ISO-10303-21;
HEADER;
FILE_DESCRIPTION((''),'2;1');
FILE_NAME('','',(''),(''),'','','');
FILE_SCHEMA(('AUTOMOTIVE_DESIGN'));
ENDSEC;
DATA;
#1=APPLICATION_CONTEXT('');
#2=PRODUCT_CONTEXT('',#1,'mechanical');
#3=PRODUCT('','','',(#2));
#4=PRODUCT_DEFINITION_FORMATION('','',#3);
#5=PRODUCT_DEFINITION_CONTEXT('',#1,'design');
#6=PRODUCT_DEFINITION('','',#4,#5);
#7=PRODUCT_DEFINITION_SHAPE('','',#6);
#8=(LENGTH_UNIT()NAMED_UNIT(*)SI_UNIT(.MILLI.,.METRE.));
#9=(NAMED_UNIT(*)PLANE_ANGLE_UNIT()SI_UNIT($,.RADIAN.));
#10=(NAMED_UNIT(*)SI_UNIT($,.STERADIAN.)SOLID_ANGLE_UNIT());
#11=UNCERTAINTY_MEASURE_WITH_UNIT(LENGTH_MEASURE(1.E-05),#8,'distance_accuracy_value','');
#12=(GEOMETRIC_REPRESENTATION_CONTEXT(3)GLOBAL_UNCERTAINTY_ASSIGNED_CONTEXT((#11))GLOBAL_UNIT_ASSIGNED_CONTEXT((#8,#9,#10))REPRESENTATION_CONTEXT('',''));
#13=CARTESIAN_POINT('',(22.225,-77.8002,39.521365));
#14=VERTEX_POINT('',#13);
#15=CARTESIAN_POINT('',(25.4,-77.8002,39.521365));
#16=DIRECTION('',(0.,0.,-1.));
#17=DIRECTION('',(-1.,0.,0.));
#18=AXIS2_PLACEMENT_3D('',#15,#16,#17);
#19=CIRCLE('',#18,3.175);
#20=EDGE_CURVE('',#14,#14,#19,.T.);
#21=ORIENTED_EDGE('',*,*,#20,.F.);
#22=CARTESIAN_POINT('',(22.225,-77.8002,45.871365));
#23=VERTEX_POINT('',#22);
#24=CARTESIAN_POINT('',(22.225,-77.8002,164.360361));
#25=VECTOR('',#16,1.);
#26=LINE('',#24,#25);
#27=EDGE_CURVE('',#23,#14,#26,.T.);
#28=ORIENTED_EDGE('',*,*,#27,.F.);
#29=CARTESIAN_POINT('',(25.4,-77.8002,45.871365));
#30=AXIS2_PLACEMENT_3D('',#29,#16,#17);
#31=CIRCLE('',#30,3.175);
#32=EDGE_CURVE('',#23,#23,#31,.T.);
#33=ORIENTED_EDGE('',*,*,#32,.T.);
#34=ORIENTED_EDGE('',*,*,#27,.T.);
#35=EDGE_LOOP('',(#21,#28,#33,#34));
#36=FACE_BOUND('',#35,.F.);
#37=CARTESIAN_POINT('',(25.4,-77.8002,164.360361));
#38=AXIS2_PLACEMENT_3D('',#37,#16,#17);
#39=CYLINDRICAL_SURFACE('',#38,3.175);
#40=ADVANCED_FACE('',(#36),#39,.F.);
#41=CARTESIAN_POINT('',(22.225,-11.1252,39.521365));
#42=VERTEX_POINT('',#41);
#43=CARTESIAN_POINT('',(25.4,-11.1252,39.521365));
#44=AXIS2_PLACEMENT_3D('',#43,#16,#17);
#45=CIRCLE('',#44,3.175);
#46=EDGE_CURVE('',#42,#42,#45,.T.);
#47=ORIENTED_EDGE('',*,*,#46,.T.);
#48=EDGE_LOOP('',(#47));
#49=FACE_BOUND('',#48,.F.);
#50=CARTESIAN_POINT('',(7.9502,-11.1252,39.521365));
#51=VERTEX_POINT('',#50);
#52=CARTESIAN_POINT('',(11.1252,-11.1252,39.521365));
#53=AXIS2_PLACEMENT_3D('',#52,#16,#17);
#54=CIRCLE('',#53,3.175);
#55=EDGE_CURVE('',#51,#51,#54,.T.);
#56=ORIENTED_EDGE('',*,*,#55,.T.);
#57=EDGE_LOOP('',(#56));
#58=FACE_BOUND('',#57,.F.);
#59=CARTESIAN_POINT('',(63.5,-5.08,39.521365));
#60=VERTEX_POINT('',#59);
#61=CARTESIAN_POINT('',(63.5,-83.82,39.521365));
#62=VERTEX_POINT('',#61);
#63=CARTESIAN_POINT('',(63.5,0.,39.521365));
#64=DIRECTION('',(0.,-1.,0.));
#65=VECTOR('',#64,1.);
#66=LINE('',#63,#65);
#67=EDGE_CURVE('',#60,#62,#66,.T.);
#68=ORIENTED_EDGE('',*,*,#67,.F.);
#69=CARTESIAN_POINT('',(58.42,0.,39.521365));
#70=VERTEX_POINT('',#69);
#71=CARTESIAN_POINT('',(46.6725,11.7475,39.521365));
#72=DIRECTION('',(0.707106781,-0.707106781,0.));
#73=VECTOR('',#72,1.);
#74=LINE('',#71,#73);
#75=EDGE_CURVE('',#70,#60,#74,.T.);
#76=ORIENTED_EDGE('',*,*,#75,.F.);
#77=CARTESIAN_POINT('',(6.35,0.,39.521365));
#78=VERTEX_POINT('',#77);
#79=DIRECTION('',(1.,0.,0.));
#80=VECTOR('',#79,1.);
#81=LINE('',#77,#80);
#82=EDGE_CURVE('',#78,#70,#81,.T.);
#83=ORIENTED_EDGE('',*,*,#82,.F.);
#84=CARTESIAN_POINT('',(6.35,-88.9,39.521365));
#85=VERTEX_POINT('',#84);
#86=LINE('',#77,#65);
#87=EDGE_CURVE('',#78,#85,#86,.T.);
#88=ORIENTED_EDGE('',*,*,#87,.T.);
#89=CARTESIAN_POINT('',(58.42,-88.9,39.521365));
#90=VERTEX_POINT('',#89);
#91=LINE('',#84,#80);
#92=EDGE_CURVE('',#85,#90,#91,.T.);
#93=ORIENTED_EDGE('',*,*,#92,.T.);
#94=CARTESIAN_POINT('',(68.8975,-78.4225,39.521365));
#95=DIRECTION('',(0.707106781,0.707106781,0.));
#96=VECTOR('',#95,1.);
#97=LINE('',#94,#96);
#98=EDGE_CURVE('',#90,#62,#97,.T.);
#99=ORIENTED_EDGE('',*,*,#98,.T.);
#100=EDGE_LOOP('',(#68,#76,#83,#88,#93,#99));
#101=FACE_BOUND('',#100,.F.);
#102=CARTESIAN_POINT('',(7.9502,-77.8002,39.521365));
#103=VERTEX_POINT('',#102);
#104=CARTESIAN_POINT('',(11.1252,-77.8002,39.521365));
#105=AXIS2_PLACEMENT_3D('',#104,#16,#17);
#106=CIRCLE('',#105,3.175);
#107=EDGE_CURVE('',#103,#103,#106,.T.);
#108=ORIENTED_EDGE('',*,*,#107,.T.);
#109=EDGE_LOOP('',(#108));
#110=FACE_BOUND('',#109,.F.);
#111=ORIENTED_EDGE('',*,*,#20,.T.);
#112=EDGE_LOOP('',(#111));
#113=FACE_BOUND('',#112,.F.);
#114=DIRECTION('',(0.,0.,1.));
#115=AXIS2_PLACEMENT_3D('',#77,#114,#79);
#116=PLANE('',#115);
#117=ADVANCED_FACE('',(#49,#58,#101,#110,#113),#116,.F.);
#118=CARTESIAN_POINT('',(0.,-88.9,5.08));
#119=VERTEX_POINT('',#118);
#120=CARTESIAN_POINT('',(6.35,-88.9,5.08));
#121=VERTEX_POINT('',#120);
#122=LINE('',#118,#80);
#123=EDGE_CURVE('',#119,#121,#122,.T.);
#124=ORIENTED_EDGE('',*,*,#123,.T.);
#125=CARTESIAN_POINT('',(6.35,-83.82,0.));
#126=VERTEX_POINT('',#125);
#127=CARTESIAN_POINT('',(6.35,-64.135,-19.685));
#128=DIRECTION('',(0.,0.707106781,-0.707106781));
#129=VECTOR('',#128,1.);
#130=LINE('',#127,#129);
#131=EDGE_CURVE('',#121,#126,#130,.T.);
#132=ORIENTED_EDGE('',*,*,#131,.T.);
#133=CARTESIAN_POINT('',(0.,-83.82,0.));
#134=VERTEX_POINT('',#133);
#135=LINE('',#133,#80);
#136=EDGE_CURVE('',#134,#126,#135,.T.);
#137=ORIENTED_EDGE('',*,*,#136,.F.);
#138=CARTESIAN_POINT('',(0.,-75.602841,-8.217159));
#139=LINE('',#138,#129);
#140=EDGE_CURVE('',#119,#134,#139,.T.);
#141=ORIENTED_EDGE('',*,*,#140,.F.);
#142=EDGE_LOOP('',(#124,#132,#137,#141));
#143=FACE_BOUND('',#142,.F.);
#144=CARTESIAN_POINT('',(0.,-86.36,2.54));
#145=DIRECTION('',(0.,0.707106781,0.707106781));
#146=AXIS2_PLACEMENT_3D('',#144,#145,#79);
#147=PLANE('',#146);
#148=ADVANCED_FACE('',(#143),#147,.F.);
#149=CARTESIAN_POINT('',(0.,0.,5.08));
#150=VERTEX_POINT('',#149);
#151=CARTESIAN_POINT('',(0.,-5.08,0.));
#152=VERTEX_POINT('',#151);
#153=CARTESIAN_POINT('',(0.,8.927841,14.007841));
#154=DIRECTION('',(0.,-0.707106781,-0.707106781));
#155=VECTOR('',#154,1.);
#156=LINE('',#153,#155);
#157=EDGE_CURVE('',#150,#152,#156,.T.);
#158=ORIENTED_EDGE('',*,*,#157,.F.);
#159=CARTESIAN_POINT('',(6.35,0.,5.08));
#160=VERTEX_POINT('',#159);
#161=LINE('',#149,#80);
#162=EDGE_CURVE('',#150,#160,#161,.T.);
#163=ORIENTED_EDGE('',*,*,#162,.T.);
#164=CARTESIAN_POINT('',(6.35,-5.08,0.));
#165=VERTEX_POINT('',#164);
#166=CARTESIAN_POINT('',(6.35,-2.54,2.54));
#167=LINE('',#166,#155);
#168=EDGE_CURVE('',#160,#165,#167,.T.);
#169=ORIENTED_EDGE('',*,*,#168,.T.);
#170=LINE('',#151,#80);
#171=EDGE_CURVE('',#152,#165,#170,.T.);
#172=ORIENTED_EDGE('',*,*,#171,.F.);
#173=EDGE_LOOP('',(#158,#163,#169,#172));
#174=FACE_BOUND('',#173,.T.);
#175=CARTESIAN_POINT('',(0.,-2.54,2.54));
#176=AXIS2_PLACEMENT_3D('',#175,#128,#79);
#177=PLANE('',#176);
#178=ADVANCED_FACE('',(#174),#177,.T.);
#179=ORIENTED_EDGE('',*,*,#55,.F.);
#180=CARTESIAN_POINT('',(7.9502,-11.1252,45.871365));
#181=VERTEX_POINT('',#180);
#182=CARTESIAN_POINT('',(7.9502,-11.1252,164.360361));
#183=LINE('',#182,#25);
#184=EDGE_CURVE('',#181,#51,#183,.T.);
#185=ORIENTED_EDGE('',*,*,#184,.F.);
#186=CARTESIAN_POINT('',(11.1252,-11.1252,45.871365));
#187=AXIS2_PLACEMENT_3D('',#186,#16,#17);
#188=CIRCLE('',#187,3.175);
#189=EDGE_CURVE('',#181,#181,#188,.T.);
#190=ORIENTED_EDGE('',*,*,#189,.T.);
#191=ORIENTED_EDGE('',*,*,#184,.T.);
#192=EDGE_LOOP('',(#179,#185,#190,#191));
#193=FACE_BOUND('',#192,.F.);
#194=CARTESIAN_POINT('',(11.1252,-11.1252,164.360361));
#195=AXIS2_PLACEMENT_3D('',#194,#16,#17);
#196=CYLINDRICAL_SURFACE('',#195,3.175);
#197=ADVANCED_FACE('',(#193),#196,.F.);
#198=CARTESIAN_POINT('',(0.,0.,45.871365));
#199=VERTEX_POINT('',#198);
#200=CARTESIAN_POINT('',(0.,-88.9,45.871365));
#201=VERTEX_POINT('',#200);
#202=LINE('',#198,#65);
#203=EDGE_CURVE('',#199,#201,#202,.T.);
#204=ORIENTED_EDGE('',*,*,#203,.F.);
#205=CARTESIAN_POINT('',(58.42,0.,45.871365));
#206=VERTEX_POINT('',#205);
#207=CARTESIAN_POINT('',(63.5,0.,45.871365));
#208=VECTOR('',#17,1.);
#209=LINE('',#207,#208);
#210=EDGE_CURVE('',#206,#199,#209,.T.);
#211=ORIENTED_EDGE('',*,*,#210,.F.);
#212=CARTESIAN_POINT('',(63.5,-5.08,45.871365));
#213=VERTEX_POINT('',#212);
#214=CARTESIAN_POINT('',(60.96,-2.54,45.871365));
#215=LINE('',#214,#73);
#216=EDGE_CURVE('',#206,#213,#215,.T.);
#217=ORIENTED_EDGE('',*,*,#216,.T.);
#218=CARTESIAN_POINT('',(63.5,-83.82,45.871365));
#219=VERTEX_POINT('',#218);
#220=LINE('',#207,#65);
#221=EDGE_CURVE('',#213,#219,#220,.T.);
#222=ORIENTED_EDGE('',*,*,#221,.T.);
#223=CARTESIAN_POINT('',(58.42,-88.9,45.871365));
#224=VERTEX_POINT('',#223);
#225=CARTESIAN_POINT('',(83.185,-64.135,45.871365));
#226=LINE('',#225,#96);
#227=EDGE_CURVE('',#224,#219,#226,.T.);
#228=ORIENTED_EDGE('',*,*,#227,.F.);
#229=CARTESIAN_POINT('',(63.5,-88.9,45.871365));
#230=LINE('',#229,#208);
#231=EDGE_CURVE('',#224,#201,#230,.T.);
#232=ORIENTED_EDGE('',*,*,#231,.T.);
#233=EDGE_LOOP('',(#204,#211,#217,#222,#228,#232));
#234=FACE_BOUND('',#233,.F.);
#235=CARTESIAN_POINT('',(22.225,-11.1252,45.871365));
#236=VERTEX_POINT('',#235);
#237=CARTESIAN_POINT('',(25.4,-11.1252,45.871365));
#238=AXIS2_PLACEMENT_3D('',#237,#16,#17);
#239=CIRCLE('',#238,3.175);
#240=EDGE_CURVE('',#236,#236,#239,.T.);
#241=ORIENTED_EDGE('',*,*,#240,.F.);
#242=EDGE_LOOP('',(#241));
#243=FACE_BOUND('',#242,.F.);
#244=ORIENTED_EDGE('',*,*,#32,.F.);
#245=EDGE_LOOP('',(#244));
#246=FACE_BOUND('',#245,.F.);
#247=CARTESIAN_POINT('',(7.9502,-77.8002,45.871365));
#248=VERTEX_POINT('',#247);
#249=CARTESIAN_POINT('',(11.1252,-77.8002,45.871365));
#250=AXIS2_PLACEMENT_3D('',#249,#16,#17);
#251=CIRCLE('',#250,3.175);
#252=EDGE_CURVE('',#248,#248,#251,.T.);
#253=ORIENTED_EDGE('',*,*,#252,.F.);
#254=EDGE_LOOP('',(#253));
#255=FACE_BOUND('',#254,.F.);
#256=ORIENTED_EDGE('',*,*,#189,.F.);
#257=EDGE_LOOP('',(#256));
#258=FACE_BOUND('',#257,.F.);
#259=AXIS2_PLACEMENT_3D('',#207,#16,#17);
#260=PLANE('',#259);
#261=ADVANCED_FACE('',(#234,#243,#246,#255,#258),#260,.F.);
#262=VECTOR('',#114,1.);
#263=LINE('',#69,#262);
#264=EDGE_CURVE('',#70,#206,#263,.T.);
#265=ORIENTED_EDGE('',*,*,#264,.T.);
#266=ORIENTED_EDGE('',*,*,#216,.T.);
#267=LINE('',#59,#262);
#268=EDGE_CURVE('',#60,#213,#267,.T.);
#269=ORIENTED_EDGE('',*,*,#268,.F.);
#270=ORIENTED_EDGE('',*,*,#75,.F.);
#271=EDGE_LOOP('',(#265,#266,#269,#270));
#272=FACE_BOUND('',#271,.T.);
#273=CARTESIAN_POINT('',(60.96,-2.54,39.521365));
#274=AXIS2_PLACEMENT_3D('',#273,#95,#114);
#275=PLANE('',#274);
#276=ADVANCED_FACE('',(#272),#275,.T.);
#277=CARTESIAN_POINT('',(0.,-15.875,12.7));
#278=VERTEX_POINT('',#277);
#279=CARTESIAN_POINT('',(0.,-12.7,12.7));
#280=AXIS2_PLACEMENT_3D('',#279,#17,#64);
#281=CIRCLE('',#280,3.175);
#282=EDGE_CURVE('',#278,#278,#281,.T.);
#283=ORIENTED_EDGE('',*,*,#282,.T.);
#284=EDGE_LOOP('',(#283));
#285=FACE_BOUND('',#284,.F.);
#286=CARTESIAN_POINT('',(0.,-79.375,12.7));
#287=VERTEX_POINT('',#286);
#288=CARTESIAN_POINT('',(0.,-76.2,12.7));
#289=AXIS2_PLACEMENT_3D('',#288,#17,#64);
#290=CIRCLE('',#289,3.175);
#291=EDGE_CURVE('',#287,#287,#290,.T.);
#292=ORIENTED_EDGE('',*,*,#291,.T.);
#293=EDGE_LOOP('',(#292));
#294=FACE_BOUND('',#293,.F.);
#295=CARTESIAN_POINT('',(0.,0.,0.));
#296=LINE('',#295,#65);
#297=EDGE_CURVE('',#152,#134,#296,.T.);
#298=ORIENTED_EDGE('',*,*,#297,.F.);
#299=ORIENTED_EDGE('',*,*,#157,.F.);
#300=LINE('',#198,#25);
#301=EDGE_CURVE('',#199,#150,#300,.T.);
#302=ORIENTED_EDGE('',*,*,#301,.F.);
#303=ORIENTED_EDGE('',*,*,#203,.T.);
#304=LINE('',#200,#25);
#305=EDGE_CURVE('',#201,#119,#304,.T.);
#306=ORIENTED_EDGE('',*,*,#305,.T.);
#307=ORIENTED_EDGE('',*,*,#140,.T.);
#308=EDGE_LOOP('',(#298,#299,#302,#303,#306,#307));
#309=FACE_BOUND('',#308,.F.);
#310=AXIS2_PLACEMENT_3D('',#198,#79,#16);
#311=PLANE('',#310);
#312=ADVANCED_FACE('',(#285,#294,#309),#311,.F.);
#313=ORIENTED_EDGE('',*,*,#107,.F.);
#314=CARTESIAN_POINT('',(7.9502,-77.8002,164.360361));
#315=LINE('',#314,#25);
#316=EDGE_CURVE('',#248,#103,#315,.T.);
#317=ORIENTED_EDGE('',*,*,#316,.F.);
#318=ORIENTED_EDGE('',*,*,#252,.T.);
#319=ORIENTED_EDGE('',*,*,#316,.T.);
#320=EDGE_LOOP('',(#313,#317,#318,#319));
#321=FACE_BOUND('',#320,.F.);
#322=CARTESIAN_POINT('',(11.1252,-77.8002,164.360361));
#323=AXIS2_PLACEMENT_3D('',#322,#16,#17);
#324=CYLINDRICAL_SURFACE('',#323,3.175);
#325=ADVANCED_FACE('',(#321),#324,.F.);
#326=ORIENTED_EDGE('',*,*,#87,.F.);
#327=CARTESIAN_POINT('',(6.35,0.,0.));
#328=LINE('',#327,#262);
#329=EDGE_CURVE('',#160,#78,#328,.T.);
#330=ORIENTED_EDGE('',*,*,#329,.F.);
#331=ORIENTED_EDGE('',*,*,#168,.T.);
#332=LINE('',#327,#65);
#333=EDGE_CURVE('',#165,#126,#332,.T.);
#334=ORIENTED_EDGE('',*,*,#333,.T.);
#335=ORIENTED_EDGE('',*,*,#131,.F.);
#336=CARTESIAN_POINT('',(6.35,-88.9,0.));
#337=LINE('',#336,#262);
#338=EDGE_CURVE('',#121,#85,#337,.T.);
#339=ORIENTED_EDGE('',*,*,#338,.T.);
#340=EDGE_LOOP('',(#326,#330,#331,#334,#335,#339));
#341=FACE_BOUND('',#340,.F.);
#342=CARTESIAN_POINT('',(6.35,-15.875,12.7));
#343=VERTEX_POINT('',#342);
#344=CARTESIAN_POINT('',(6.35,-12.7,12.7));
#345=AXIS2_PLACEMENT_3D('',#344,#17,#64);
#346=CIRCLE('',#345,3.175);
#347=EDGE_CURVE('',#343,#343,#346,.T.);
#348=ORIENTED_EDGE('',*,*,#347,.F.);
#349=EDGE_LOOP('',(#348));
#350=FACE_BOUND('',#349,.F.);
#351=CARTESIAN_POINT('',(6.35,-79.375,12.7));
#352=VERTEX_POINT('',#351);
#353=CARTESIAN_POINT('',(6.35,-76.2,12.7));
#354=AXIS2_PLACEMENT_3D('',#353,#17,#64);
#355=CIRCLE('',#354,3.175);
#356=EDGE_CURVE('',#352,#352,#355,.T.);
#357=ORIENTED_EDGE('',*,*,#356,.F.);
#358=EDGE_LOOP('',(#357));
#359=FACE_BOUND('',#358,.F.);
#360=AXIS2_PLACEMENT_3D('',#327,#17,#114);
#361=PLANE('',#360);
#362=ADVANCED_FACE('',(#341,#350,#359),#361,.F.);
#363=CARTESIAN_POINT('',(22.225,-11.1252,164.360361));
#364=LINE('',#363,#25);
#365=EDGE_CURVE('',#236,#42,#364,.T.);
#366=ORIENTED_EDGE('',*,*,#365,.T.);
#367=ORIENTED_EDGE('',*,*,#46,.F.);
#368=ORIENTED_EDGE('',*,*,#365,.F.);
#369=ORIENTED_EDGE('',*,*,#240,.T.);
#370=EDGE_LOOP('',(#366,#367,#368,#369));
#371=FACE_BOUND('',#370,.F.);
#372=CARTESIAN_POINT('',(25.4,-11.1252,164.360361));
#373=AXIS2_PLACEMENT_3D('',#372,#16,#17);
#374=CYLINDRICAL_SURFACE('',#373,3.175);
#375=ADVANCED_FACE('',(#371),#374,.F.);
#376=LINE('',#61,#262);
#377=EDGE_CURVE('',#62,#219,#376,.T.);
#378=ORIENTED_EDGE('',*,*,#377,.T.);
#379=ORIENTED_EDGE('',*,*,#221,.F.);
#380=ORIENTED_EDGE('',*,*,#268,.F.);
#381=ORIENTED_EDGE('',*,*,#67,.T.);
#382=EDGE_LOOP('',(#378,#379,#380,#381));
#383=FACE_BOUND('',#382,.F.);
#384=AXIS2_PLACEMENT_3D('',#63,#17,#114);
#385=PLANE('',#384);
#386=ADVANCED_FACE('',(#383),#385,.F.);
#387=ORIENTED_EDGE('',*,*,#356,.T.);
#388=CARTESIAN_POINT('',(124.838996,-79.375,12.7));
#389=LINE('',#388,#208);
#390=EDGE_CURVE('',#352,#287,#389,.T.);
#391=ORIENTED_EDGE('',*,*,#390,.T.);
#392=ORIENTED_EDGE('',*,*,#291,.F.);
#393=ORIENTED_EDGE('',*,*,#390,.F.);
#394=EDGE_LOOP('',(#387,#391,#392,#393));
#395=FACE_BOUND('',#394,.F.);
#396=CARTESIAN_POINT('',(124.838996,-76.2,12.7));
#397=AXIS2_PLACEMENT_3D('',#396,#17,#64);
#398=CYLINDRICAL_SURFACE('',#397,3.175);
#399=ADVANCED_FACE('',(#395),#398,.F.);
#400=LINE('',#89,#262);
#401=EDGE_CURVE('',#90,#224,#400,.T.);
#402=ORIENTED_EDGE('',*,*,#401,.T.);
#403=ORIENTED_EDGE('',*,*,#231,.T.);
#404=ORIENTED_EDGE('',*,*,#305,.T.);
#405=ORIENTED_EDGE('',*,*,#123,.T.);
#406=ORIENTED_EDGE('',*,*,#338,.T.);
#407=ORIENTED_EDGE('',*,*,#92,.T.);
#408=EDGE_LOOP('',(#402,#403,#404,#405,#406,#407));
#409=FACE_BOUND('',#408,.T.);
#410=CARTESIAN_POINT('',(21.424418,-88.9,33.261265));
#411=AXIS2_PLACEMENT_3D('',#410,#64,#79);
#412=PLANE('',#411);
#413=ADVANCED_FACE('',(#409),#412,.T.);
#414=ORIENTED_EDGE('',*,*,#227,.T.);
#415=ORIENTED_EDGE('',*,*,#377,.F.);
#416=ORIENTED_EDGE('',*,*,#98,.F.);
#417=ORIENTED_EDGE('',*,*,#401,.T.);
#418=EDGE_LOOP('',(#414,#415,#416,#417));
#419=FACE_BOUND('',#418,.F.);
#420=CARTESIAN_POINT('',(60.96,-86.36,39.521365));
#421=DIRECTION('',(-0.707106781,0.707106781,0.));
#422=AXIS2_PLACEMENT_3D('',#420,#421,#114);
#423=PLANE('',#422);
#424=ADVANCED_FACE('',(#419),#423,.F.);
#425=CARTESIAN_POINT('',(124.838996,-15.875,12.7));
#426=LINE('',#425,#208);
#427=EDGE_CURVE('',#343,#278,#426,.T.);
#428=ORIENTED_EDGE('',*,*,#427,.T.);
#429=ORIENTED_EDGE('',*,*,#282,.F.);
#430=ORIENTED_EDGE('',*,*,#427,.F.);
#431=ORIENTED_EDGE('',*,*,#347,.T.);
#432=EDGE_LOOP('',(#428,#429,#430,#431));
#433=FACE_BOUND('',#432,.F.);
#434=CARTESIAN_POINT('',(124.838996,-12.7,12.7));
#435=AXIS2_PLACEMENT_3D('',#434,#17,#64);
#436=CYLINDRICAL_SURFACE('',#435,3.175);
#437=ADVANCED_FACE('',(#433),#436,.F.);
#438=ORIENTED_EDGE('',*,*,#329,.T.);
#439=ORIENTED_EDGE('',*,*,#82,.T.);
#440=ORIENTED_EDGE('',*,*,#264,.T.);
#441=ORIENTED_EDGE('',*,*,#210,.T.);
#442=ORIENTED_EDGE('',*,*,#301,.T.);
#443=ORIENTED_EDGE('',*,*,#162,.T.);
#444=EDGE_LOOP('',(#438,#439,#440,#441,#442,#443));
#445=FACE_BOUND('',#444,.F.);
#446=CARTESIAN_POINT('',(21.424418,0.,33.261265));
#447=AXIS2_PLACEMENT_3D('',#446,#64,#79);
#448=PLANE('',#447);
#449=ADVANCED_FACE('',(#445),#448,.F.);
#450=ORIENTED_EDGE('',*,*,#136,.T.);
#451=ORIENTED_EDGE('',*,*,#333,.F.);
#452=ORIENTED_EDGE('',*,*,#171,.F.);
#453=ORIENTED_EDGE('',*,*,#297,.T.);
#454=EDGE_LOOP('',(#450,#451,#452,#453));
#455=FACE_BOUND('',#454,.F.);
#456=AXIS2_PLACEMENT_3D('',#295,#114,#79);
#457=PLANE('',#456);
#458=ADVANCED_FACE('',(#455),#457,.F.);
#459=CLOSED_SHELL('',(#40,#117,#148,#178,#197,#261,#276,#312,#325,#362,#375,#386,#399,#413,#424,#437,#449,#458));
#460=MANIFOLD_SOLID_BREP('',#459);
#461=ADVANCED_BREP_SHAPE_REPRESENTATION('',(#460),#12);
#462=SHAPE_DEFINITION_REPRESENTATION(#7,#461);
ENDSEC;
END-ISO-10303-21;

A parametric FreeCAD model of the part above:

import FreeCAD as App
import Part
import Sketcher

V = App.Vector
Q = App.Units.Quantity


def edges_at(feature, points):
    """Names of the edges that pass closest to the given points."""
    edges = feature.Shape.Edges
    near = lambda p: min(range(len(edges)), key=lambda i: edges[i].distToShape(Part.Vertex(*p))[0])
    return sorted({f"Edge{near(p) + 1}" for p in points})

doc = App.newDocument("Part")
body = doc.addObject("PartDesign::Body", "Body")

# Sketch on XZ plane
sketch1 = body.newObject("Sketcher::SketchObject", "Sketch")
sketch1.AttachmentSupport = (doc.getObject("XZ_Plane"), [""])
sketch1.MapMode = "FlatFace"
sketch1.addGeometry([
    Part.LineSegment(V(0, 46, 0), V(0, 0, 0)),  # 0
    Part.LineSegment(V(0, 0, 0), V(6, 0, 0)),  # 1
    Part.LineSegment(V(6, 0, 0), V(6, 40, 0)),  # 2
    Part.LineSegment(V(6, 40, 0), V(64, 40, 0)),  # 3
    Part.LineSegment(V(64, 40, 0), V(64, 46, 0)),  # 4
    Part.LineSegment(V(64, 46, 0), V(0, 46, 0)),  # 5
], False)
sketch1.addConstraint([
    Sketcher.Constraint("Coincident", 0, 2, 1, 1),
    Sketcher.Constraint("Coincident", 1, 2, 2, 1),
    Sketcher.Constraint("Coincident", 2, 2, 3, 1),
    Sketcher.Constraint("Coincident", 3, 2, 4, 1),
    Sketcher.Constraint("Coincident", 4, 2, 5, 1),
    Sketcher.Constraint("Coincident", 5, 2, 0, 1),
    Sketcher.Constraint("Vertical", 0),
    Sketcher.Constraint("Horizontal", 1),
    Sketcher.Constraint("Vertical", 2),
    Sketcher.Constraint("Horizontal", 3),
    Sketcher.Constraint("Vertical", 4),
    Sketcher.Constraint("Horizontal", 5),
    Sketcher.Constraint("Coincident", 0, 2, -1, 1),
    Sketcher.Constraint("Equal", 1, 4),
    Sketcher.Constraint("DistanceX", 5, 2, 5, 1, Q("2.5 in")),
    Sketcher.Constraint("DistanceX", 1, 1, 1, 2, Q("0.25 in")),
    Sketcher.Constraint("DistanceY", 0, 2, 0, 1, 45.871365),
])
pad1 = body.newObject("PartDesign::Pad", "Pad")
pad1.Profile = sketch1
pad1.Length = Q("3.5 in")

# Sketch on YZ plane
sketch2 = body.newObject("Sketcher::SketchObject", "Sketch001")
sketch2.AttachmentSupport = (doc.getObject("YZ_Plane"), [""])
sketch2.MapMode = "FlatFace"
sketch2.AttachmentOffset = App.Placement(V(0, 0, 0.25 * 25.4), App.Rotation())
sketch2.addGeometry([
    Part.Circle(V(-76.2, 12.7, 0), V(0, 0, 1), 3.2),
    Part.Circle(V(-12.7, 12.7, 0), V(0, 0, 1), 3.2),
], False)
sketch2.addConstraint([
    Sketcher.Constraint("Equal", 0, 1),
    Sketcher.Constraint("Horizontal", 0, 3, 1, 3),
    Sketcher.Constraint("Diameter", 0, Q("0.25 in")),
    Sketcher.Constraint("DistanceX", 0, 3, -1, 1, Q("3 in")),
    Sketcher.Constraint("DistanceY", -1, 1, 0, 3, Q("0.5 in")),
    Sketcher.Constraint("DistanceX", 1, 3, -1, 1, Q("0.5 in")),
])
doc.recompute()
hole = body.newObject("PartDesign::Hole", "Hole")
hole.Profile = sketch2
hole.ThreadType = "None"
hole.Diameter = Q("0.25 in")
hole.DepthType = "ThroughAll"
doc.recompute()

chamfer = body.newObject("PartDesign::Chamfer", "Chamfer")
chamfer.Base = (hole, edges_at(hole, [
    (3.175, 0, 0),
    (3.175, -88.9, 0),
    (63.5, -88.9, 42.696),
    (63.5, 0, 42.696),
]))
chamfer.Size = Q("0.2 in")

# Sketch on XY plane
sketch3 = body.newObject("Sketcher::SketchObject", "Sketch002")
sketch3.AttachmentSupport = (doc.getObject("XY_Plane"), [""])
sketch3.MapMode = "FlatFace"
sketch3.AttachmentOffset = App.Placement(V(0, 0, 45.871365), App.Rotation())
sketch3.addGeometry([
    Part.Circle(V(11.1, -11.1, 0), V(0, 0, 1), 3.2),
    Part.Circle(V(25.4, -11.1, 0), V(0, 0, 1), 3.2),
    Part.Circle(V(25.4, -77.8, 0), V(0, 0, 1), 3.2),
    Part.Circle(V(11.1, -77.8, 0), V(0, 0, 1), 3.2),
], False)
sketch3.addConstraint([
    Sketcher.Constraint("Equal", 0, 1),
    Sketcher.Constraint("Equal", 1, 2),
    Sketcher.Constraint("Equal", 2, 3),
    Sketcher.Constraint("Horizontal", 0, 3, 1, 3),
    Sketcher.Constraint("Horizontal", 2, 3, 3, 3),
    Sketcher.Constraint("Vertical", 1, 3, 2, 3),
    Sketcher.Constraint("Vertical", 0, 3, 3, 3),
    Sketcher.Constraint("Diameter", 0, Q("0.25 in")),
    Sketcher.Constraint("DistanceX", -1, 1, 1, 3, Q("1 in")),
    Sketcher.Constraint("DistanceX", -1, 1, 0, 3, Q("0.438 in")),
    Sketcher.Constraint("DistanceY", 0, 3, -1, 1, Q("0.438 in")),
    Sketcher.Constraint("DistanceY", 2, 3, -1, 1, Q("3.063 in")),
])
doc.recompute()
hole2 = body.newObject("PartDesign::Hole", "Hole001")
hole2.Profile = sketch3
hole2.ThreadType = "None"
hole2.Diameter = Q("0.25 in")
hole2.DepthType = "ThroughAll"

doc.recompute()
